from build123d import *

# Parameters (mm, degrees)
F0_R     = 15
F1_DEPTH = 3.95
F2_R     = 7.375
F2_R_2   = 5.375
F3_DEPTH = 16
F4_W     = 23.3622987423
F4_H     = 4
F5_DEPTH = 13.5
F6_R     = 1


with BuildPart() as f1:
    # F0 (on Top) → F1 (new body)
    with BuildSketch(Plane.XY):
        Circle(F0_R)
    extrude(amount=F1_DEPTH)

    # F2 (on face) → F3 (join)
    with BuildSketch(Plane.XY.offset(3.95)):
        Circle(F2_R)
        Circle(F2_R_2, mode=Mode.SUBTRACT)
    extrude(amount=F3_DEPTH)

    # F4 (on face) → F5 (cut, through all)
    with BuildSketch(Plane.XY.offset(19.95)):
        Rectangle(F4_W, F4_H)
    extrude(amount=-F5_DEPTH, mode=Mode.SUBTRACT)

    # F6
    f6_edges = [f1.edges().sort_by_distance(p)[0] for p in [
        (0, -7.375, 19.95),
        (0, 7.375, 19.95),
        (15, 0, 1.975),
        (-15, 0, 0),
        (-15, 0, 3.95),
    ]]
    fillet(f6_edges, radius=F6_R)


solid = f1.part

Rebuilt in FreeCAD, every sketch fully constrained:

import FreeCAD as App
import Part
import Sketcher
from FreeCAD import Vector
Q = App.Units.Quantity


def edges_at(feature, points):
    """Names of the edges that pass closest to the given points."""
    edges = feature.Shape.Edges
    near = lambda p: min(range(len(edges)), key=lambda i: edges[i].distToShape(Part.Vertex(*p))[0])
    return sorted({f"Edge{near(p) + 1}" for p in points})

doc = App.newDocument("Part")
params = doc.addObject("Spreadsheet::Sheet", "Params")
for row, (alias, value) in enumerate([
    ("sketch1_diameter", "30 mm"),
    ("pad1_length", "3.95 mm"),
    ("sketch2_diameter", "14.75 mm"),
    ("sketch2_diameter2", "10.75 mm"),
    ("pad2_length", "16 mm"),
    ("sketch3_height", "4 mm"),
    ("pocket1_length", "13.5 mm"),
    ("fillet_radius", "1 mm"),
], start=1):
    params.set(f"A{row}", alias)
    params.set(f"B{row}", "=" + value)
    params.setAlias(f"B{row}", alias)

body = doc.addObject("PartDesign::Body", "Body")

# Sketch on XY plane
sketch1 = doc.addObject("Sketcher::SketchObject", "Sketch")
body.addObject(sketch1)
sketch1.AttachmentSupport = (doc.XY_Plane, [""])
sketch1.MapMode = "FlatFace"
sketch1.addGeometry(Part.Circle(Vector(0, 0, 0), Vector(0, 0, 1), 15), False)
sketch1.addConstraint(Sketcher.Constraint("Coincident", 0, 3, -1, 1))
sketch1.addConstraint(Sketcher.Constraint("Diameter", 0, Q("30 mm")))
sketch1.setExpression("Constraints[1]", "Params.sketch1_diameter")
pad1 = doc.addObject("PartDesign::Pad", "Pad")
body.addObject(pad1)
pad1.Profile = sketch1
pad1.setExpression("Length", "Params.pad1_length")

# Sketch on XY plane
sketch2 = doc.addObject("Sketcher::SketchObject", "Sketch001")
body.addObject(sketch2)
sketch2.AttachmentSupport = (doc.XY_Plane, [""])
sketch2.MapMode = "FlatFace"
sketch2.AttachmentOffset = App.Placement(Vector(0, 0, 3.95), App.Rotation())
sketch2.addGeometry(Part.Circle(Vector(0, 0, 0), Vector(0, 0, 1), 7), False)
sketch2.addGeometry(Part.Circle(Vector(0, 0, 0), Vector(0, 0, 1), 5), False)
sketch2.addConstraint(Sketcher.Constraint("Coincident", 0, 3, -1, 1))
sketch2.addConstraint(Sketcher.Constraint("Coincident", 1, 3, -1, 1))
sketch2.addConstraint(Sketcher.Constraint("Diameter", 0, Q("14.75 mm")))
sketch2.addConstraint(Sketcher.Constraint("Diameter", 1, Q("10.75 mm")))
sketch2.setExpression("Constraints[2]", "Params.sketch2_diameter")
sketch2.setExpression("Constraints[3]", "Params.sketch2_diameter2")
pad2 = doc.addObject("PartDesign::Pad", "Pad001")
body.addObject(pad2)
pad2.Profile = sketch2
pad2.setExpression("Length", "Params.pad2_length")

# Sketch on XY plane
sketch3 = doc.addObject("Sketcher::SketchObject", "Sketch002")
body.addObject(sketch3)
sketch3.AttachmentSupport = (doc.XY_Plane, [""])
sketch3.MapMode = "FlatFace"
sketch3.AttachmentOffset = App.Placement(Vector(0, 0, 19.95), App.Rotation())
sketch3.addGeometry(Part.LineSegment(Vector(-11.7, 2, 0), Vector(-11.7, -2, 0)), False)
sketch3.addGeometry(Part.LineSegment(Vector(-11.7, -2, 0), Vector(11.7, -2, 0)), False)
sketch3.addGeometry(Part.LineSegment(Vector(11.7, -2, 0), Vector(11.7, 2, 0)), False)
sketch3.addGeometry(Part.LineSegment(Vector(11.7, 2, 0), Vector(-11.7, 2, 0)), False)
sketch3.addConstraint(Sketcher.Constraint("Coincident", 0, 2, 1, 1))
sketch3.addConstraint(Sketcher.Constraint("Coincident", 1, 2, 2, 1))
sketch3.addConstraint(Sketcher.Constraint("Coincident", 2, 2, 3, 1))
sketch3.addConstraint(Sketcher.Constraint("Coincident", 3, 2, 0, 1))
sketch3.addConstraint(Sketcher.Constraint("Vertical", 0))
sketch3.addConstraint(Sketcher.Constraint("Horizontal", 1))
sketch3.addConstraint(Sketcher.Constraint("Vertical", 2))
sketch3.addConstraint(Sketcher.Constraint("Horizontal", 3))
sketch3.addConstraint(Sketcher.Constraint("Symmetric", 0, 2, 2, 2, -1, 1))
sketch3.addConstraint(Sketcher.Constraint("DistanceY", 0, 2, 0, 1, Q("4 mm")))
sketch3.addConstraint(Sketcher.Constraint("DistanceX", 1, 1, 1, 2, Q("23.362299 mm")))
sketch3.setExpression("Constraints[9]", "Params.sketch3_height")
pocket1 = doc.addObject("PartDesign::Pocket", "Pocket")
body.addObject(pocket1)
pocket1.Profile = sketch3
pocket1.setExpression("Length", "Params.pocket1_length")
doc.recompute()

fillet = doc.addObject("PartDesign::Fillet", "Fillet")
body.addObject(fillet)
fillet.Base = (pocket1, edges_at(pocket1, [
    (0, -7.375, 19.95),
    (0, 7.375, 19.95),
    (15, 0, 1.975),
    (-15, 0, 0),
    (-15, 0, 3.95),
]))
fillet.setExpression("Radius", "Params.fillet_radius")

doc.recompute()
